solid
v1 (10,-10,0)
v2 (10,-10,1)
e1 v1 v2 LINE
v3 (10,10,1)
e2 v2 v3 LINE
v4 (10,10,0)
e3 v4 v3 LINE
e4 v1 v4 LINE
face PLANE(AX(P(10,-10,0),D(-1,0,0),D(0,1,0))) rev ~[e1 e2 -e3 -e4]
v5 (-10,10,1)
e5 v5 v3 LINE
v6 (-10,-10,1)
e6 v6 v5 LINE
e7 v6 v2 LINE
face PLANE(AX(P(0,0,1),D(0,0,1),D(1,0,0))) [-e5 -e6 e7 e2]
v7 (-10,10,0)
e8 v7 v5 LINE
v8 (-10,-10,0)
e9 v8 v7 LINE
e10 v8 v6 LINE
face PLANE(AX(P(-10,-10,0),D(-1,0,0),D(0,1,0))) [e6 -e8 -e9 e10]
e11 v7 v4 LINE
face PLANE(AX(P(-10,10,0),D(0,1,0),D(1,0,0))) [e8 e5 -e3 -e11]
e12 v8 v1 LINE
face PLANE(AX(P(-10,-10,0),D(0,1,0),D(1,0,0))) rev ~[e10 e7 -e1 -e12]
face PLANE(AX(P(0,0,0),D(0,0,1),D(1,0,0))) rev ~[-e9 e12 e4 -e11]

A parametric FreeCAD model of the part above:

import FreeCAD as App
import Part
import Sketcher


def add_polygon(sketch, points):
    """Adds a closed chain of lines whose ends are joined by coincident constraints."""
    first, n = sketch.GeometryCount, len(points)
    for a, b in zip(points, points[1:] + points[:1]):
        sketch.addGeometry(Part.LineSegment(App.Vector(*a, 0), App.Vector(*b, 0)), False)
    for i in range(n):
        sketch.addConstraint(Sketcher.Constraint("Coincident", first + i, 2, first + (i + 1) % n, 1))

doc = App.newDocument("Part")
body = doc.addObject("PartDesign::Body", "Body")

sketch1 = doc.addObject("Sketcher::SketchObject", "Sketch")
body.addObject(sketch1)
sketch1.AttachmentSupport = (doc.XY_Plane, [""])
sketch1.MapMode = "FlatFace"
add_polygon(sketch1, [(-10, 10), (-10, -10), (10, -10), (10, 10)])
sketch1.addConstraint([
    Sketcher.Constraint("Vertical", 0),
    Sketcher.Constraint("Horizontal", 1),
    Sketcher.Constraint("Vertical", 2),
    Sketcher.Constraint("Horizontal", 3),
    Sketcher.Constraint("Symmetric", 0, 2, 2, 2, -1, 1),
    Sketcher.Constraint("Equal", 3, 0),
    Sketcher.Constraint("DistanceX", 1, 1, 1, 2, 20.0),
])
pad1 = doc.addObject("PartDesign::Pad", "Pad")
body.addObject(pad1)
pad1.Profile = sketch1
pad1.Length = 1

doc.recompute()
